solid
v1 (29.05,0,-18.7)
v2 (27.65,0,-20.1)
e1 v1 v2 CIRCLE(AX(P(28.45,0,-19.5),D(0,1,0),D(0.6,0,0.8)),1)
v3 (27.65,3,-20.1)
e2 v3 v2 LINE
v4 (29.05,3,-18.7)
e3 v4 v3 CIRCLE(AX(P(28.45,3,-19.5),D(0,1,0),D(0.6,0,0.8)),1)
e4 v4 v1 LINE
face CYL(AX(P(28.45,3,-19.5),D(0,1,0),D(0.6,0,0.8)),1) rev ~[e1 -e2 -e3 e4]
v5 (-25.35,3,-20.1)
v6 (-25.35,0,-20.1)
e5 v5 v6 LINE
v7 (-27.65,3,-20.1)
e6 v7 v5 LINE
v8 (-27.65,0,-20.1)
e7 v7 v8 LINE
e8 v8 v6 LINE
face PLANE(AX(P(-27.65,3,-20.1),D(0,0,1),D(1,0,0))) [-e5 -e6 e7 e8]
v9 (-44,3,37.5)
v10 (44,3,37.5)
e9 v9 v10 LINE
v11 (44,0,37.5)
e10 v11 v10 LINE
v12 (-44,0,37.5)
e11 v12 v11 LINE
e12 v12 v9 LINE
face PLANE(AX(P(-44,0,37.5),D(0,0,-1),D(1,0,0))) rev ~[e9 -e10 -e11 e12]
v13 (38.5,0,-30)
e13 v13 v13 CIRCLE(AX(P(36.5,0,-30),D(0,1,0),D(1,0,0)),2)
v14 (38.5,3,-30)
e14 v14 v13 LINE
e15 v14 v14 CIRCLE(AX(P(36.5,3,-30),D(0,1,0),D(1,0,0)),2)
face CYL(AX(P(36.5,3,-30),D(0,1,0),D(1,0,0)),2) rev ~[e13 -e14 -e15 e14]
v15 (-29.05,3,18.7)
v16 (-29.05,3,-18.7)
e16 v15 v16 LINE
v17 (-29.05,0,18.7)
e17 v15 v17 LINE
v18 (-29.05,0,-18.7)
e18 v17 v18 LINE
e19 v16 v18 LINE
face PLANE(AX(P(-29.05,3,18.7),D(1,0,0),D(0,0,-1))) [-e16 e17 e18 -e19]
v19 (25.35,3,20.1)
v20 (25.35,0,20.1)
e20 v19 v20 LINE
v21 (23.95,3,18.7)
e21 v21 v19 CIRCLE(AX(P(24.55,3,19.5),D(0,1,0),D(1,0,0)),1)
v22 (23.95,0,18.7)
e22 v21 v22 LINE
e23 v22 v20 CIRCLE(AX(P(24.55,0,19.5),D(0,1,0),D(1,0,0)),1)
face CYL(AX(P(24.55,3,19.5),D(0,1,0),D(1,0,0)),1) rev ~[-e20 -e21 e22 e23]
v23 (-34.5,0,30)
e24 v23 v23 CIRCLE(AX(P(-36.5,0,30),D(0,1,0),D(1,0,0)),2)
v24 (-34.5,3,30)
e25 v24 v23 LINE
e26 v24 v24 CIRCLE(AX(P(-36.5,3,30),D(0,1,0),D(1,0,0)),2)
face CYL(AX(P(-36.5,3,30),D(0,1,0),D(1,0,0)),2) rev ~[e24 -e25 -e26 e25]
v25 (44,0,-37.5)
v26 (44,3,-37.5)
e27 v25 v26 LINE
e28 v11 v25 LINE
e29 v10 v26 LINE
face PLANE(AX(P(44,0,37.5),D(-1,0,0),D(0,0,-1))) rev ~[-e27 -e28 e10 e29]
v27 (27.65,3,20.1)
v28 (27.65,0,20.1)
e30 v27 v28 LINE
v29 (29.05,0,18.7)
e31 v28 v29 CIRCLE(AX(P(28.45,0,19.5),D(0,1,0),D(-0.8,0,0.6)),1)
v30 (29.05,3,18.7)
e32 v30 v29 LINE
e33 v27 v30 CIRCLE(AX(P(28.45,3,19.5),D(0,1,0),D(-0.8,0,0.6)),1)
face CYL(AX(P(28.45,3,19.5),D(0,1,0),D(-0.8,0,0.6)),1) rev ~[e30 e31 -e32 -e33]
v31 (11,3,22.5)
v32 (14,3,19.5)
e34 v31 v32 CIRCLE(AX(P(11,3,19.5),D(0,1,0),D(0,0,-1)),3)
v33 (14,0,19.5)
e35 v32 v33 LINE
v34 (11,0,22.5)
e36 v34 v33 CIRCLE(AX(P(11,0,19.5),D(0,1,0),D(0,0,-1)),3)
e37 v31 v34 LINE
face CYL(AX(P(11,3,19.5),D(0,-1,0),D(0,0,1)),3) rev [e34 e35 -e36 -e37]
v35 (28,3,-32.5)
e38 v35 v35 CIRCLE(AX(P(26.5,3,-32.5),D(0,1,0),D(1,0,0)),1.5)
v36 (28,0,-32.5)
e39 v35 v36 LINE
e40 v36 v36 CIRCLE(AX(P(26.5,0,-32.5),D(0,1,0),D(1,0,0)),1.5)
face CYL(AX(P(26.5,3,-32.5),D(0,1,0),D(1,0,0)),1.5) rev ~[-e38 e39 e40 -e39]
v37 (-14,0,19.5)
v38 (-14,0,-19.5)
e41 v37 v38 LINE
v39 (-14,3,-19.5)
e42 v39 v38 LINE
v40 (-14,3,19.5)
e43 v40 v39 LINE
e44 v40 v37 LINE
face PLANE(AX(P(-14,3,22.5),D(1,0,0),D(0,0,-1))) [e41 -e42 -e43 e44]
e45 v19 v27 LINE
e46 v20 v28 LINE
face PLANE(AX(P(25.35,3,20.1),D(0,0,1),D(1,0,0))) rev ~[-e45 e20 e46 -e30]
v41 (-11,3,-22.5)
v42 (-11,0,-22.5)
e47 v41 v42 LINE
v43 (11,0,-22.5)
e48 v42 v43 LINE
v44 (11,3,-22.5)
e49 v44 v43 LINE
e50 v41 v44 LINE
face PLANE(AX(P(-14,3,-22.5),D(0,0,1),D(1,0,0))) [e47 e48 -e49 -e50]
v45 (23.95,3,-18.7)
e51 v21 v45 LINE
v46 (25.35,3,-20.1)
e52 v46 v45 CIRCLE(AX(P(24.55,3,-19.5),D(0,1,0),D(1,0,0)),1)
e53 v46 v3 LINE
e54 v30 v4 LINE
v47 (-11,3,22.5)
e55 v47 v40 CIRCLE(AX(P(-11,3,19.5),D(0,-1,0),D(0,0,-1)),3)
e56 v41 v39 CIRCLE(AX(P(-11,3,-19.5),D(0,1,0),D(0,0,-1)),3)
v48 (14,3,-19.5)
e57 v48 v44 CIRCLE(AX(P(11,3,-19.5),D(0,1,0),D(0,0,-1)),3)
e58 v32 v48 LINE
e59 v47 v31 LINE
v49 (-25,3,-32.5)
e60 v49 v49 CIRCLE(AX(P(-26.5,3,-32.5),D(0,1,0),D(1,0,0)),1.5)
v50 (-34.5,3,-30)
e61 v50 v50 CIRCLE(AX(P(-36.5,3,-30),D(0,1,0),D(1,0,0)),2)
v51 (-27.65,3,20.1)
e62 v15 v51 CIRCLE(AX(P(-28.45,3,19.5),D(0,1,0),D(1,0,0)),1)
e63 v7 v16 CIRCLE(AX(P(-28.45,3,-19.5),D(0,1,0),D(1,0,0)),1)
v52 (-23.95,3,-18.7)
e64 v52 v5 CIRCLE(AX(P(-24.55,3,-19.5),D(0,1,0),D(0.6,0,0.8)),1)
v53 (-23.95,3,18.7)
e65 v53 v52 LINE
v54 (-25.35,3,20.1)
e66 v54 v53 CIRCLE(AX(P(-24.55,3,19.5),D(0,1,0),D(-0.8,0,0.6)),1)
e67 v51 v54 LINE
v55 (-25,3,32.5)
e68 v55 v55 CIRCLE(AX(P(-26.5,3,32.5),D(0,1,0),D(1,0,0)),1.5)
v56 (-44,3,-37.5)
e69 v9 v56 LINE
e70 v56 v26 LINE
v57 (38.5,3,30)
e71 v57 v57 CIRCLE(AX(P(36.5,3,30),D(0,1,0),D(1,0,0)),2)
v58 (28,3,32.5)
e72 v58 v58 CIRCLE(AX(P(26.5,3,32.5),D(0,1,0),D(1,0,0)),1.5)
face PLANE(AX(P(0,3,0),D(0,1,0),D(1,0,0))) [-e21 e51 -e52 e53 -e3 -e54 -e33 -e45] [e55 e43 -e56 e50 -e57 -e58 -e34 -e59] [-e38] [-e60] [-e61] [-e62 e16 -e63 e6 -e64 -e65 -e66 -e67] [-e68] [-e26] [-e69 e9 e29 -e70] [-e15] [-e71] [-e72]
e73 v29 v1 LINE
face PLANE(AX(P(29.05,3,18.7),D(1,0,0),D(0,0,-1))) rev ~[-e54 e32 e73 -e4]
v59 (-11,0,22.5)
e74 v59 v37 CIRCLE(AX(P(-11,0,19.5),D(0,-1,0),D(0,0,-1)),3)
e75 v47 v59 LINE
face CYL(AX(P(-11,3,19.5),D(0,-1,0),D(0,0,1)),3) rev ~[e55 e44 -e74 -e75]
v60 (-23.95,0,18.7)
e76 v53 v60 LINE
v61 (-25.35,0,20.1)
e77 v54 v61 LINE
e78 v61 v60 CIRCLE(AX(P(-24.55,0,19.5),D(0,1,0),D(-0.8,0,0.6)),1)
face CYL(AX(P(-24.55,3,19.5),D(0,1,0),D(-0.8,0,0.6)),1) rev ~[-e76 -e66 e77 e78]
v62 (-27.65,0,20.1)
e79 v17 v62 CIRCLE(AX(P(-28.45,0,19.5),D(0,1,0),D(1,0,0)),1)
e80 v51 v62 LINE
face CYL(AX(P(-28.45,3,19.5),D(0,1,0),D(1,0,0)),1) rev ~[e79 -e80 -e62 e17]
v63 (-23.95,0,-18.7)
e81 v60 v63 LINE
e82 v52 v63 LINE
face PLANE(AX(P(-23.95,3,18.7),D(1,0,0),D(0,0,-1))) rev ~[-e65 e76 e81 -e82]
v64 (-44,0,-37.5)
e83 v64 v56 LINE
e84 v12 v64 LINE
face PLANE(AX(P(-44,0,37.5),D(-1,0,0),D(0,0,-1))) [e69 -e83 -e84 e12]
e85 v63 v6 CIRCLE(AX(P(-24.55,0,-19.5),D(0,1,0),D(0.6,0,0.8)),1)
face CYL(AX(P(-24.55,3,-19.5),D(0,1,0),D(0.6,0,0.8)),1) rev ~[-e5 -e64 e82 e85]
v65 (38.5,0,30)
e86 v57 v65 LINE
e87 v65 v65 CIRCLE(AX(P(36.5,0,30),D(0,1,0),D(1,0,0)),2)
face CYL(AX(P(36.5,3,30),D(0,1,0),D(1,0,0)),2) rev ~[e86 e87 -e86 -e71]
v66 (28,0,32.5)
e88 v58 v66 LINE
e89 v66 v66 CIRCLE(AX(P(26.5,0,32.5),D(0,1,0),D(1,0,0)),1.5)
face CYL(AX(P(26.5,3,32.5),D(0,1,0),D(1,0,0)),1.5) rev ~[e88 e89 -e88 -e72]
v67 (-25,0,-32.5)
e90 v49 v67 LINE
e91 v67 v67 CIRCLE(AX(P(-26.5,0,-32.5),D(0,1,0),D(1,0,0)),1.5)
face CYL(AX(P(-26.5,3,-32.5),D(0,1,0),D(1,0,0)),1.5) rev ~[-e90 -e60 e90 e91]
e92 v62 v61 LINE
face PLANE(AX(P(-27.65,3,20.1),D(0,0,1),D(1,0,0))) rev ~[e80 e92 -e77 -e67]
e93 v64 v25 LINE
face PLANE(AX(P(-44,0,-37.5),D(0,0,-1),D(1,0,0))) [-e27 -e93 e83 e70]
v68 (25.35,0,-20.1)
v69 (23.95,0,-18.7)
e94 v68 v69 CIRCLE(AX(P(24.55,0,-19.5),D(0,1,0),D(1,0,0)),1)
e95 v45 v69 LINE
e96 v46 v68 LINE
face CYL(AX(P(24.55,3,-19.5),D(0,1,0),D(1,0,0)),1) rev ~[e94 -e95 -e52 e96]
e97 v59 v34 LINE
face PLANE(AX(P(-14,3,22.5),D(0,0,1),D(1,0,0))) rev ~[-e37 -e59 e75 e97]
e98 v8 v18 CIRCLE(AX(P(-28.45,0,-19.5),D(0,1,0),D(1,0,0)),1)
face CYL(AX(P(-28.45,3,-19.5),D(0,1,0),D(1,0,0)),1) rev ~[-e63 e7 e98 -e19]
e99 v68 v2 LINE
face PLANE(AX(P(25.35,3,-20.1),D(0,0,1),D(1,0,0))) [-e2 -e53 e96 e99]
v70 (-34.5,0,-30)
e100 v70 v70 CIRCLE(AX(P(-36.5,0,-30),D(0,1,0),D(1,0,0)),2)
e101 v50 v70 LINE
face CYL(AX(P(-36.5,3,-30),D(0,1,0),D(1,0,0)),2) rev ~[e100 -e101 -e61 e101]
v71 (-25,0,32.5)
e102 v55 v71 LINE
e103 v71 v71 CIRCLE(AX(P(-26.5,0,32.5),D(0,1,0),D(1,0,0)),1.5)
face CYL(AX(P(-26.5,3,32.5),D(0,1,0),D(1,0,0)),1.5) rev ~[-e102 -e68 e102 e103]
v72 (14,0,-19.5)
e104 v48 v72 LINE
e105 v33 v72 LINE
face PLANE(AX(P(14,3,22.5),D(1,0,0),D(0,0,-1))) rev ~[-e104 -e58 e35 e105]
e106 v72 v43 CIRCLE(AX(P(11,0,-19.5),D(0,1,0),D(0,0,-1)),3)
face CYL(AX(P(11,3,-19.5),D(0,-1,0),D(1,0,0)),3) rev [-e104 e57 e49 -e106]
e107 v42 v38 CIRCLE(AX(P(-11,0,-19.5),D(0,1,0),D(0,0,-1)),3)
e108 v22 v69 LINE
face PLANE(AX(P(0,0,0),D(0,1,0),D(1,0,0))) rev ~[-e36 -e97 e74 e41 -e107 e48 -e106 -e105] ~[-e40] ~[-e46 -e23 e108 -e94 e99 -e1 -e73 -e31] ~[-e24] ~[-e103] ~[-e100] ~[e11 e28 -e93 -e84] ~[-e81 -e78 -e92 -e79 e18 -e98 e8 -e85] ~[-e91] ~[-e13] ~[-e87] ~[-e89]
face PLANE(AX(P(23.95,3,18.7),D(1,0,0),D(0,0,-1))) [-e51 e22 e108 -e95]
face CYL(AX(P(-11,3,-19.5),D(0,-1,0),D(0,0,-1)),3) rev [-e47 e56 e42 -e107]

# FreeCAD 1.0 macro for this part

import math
import FreeCAD as App
import Part
import Sketcher


def edges_at(feature, points):
    """Names of the edges that pass closest to the given points."""
    edges = feature.Shape.Edges
    near = lambda p: min(range(len(edges)), key=lambda i: edges[i].distToShape(Part.Vertex(*p))[0])
    return sorted({f"Edge{near(p) + 1}" for p in points})

doc = App.newDocument("Part")
body = doc.addObject("PartDesign::Body", "Body")

# Sketch on XZ plane
sketch1 = body.newObject("Sketcher::SketchObject", "Sketch")
sketch1.AttachmentSupport = (doc.getObject("XZ_Plane"), [""])
sketch1.MapMode = "FlatFace"
sketch1.addGeometry(Part.LineSegment(App.Vector(-44, -38, 0), App.Vector(-44, 38, 0)), False)
sketch1.addGeometry(Part.LineSegment(App.Vector(-44, 38, 0), App.Vector(44, 38, 0)), False)
sketch1.addGeometry(Part.LineSegment(App.Vector(44, 38, 0), App.Vector(44, -38, 0)), False)
sketch1.addGeometry(Part.LineSegment(App.Vector(44, -38, 0), App.Vector(-44, -38, 0)), False)
sketch1.addConstraint(Sketcher.Constraint("Coincident", 0, 2, 1, 1))
sketch1.addConstraint(Sketcher.Constraint("Coincident", 1, 2, 2, 1))
sketch1.addConstraint(Sketcher.Constraint("Coincident", 2, 2, 3, 1))
sketch1.addConstraint(Sketcher.Constraint("Coincident", 3, 2, 0, 1))
sketch1.addConstraint(Sketcher.Constraint("Vertical", 0))
sketch1.addConstraint(Sketcher.Constraint("Horizontal", 1))
sketch1.addConstraint(Sketcher.Constraint("Vertical", 2))
sketch1.addConstraint(Sketcher.Constraint("Horizontal", 3))
sketch1.addConstraint(Sketcher.Constraint("Symmetric", 0, 2, 2, 2, -1, 1))
sketch1.addConstraint(Sketcher.Constraint("DistanceX", 1, 1, 1, 2, 88.0))
sketch1.addConstraint(Sketcher.Constraint("DistanceY", 0, 1, 0, 2, 75.0))
pad1 = body.newObject("PartDesign::Pad", "Pad")
pad1.Profile = sketch1
pad1.Length = 3
pad1.Reversed = True

# Sketch on XZ plane
sketch2 = body.newObject("Sketcher::SketchObject", "Sketch001")
sketch2.AttachmentSupport = (doc.getObject("XZ_Plane"), [""])
sketch2.MapMode = "FlatFace"
sketch2.AttachmentOffset = App.Placement(App.Vector(0, 0, -3), App.Rotation())
sketch2.addGeometry(Part.Circle(App.Vector(-26.5, -32.5, 0), App.Vector(0, 0, 1), 1.5), False)
sketch2.addGeometry(Part.Circle(App.Vector(26.5, -32.5, 0), App.Vector(0, 0, 1), 1.5), False)
sketch2.addGeometry(Part.LineSegment(App.Vector(-29.1, -18.7, 0), App.Vector(-29.1, 18.7, 0)), False)
sketch2.addGeometry(Part.ArcOfCircle(Part.Circle(App.Vector(-28.4, 19.5, 0), App.Vector(0, 0, 1), 1), math.radians(37), math.radians(233)), False)
sketch2.addGeometry(Part.LineSegment(App.Vector(-27.6, 20.1, 0), App.Vector(-25.4, 20.1, 0)), False)
sketch2.addGeometry(Part.ArcOfCircle(Part.Circle(App.Vector(-24.6, 19.5, 0), App.Vector(0, 0, 1), 1), math.radians(-53), math.radians(143)), False)
sketch2.addGeometry(Part.LineSegment(App.Vector(-23.9, 18.7, 0), App.Vector(-23.9, -18.7, 0)), False)
sketch2.addGeometry(Part.ArcOfCircle(Part.Circle(App.Vector(-24.6, -19.5, 0), App.Vector(0, 0, 1), 1), math.radians(-143), math.radians(53)), False)
sketch2.addGeometry(Part.LineSegment(App.Vector(-25.4, -20.1, 0), App.Vector(-27.6, -20.1, 0)), False)
sketch2.addGeometry(Part.ArcOfCircle(Part.Circle(App.Vector(-28.4, -19.5, 0), App.Vector(0, 0, 1), 1), math.radians(127), math.radians(323)), False)
sketch2.addGeometry(Part.LineSegment(App.Vector(23.9, -18.7, 0), App.Vector(23.9, 18.7, 0)), False)
sketch2.addGeometry(Part.ArcOfCircle(Part.Circle(App.Vector(24.6, 19.5, 0), App.Vector(0, 0, 1), 1), math.radians(37), math.radians(233)), False)
sketch2.addGeometry(Part.LineSegment(App.Vector(25.4, 20.1, 0), App.Vector(27.6, 20.1, 0)), False)
sketch2.addGeometry(Part.ArcOfCircle(Part.Circle(App.Vector(28.4, 19.5, 0), App.Vector(0, 0, 1), 1), math.radians(-53), math.radians(143)), False)
sketch2.addGeometry(Part.LineSegment(App.Vector(29.1, 18.7, 0), App.Vector(29.1, -18.7, 0)), False)
sketch2.addGeometry(Part.ArcOfCircle(Part.Circle(App.Vector(28.4, -19.5, 0), App.Vector(0, 0, 1), 1), math.radians(-143), math.radians(53)), False)
sketch2.addGeometry(Part.LineSegment(App.Vector(27.6, -20.1, 0), App.Vector(25.4, -20.1, 0)), False)
sketch2.addGeometry(Part.ArcOfCircle(Part.Circle(App.Vector(24.6, -19.5, 0), App.Vector(0, 0, 1), 1), math.radians(127), math.radians(323)), False)
sketch2.addGeometry(Part.Circle(App.Vector(-26.5, 32.5, 0), App.Vector(0, 0, 1), 1.5), False)
sketch2.addGeometry(Part.Circle(App.Vector(26.5, 32.5, 0), App.Vector(0, 0, 1), 1.5), False)
sketch2.addGeometry(Part.Circle(App.Vector(-36.5, 30, 0), App.Vector(0, 0, 1), 2), False)
sketch2.addGeometry(Part.Circle(App.Vector(-36.5, -30, 0), App.Vector(0, 0, 1), 2), False)
sketch2.addGeometry(Part.Circle(App.Vector(36.5, -30, 0), App.Vector(0, 0, 1), 2), False)
sketch2.addGeometry(Part.Circle(App.Vector(36.5, 30, 0), App.Vector(0, 0, 1), 2), False)
sketch2.addGeometry(Part.LineSegment(App.Vector(-14, -22.5, 0), App.Vector(-14, 22.5, 0)), False)
sketch2.addGeometry(Part.LineSegment(App.Vector(-14, 22.5, 0), App.Vector(14, 22.5, 0)), False)
sketch2.addGeometry(Part.LineSegment(App.Vector(14, 22.5, 0), App.Vector(14, -22.5, 0)), False)
sketch2.addGeometry(Part.LineSegment(App.Vector(14, -22.5, 0), App.Vector(-14, -22.5, 0)), False)
sketch2.addConstraint(Sketcher.Constraint("Coincident", 2, 2, 3, 2))
sketch2.addConstraint(Sketcher.Constraint("Coincident", 3, 1, 4, 1))
sketch2.addConstraint(Sketcher.Constraint("Coincident", 4, 2, 5, 2))
sketch2.addConstraint(Sketcher.Constraint("Coincident", 5, 1, 6, 1))
sketch2.addConstraint(Sketcher.Constraint("Coincident", 6, 2, 7, 2))
sketch2.addConstraint(Sketcher.Constraint("Coincident", 7, 1, 8, 1))
sketch2.addConstraint(Sketcher.Constraint("Coincident", 8, 2, 9, 2))
sketch2.addConstraint(Sketcher.Constraint("Coincident", 9, 1, 2, 1))
sketch2.addConstraint(Sketcher.Constraint("Coincident", 10, 2, 11, 2))
sketch2.addConstraint(Sketcher.Constraint("Coincident", 11, 1, 12, 1))
sketch2.addConstraint(Sketcher.Constraint("Coincident", 12, 2, 13, 2))
sketch2.addConstraint(Sketcher.Constraint("Coincident", 13, 1, 14, 1))
sketch2.addConstraint(Sketcher.Constraint("Coincident", 14, 2, 15, 2))
sketch2.addConstraint(Sketcher.Constraint("Coincident", 15, 1, 16, 1))
sketch2.addConstraint(Sketcher.Constraint("Coincident", 16, 2, 17, 2))
sketch2.addConstraint(Sketcher.Constraint("Coincident", 17, 1, 10, 1))
sketch2.addConstraint(Sketcher.Constraint("Coincident", 24, 2, 25, 1))
sketch2.addConstraint(Sketcher.Constraint("Coincident", 25, 2, 26, 1))
sketch2.addConstraint(Sketcher.Constraint("Coincident", 26, 2, 27, 1))
sketch2.addConstraint(Sketcher.Constraint("Coincident", 27, 2, 24, 1))
sketch2.addConstraint(Sketcher.Constraint("Vertical", 2))
sketch2.addConstraint(Sketcher.Constraint("Horizontal", 4))
sketch2.addConstraint(Sketcher.Constraint("Vertical", 6))
sketch2.addConstraint(Sketcher.Constraint("Horizontal", 8))
sketch2.addConstraint(Sketcher.Constraint("Vertical", 10))
sketch2.addConstraint(Sketcher.Constraint("Horizontal", 12))
sketch2.addConstraint(Sketcher.Constraint("Vertical", 14))
sketch2.addConstraint(Sketcher.Constraint("Horizontal", 16))
sketch2.addConstraint(Sketcher.Constraint("Vertical", 24))
sketch2.addConstraint(Sketcher.Constraint("Horizontal", 25))
sketch2.addConstraint(Sketcher.Constraint("Vertical", 26))
sketch2.addConstraint(Sketcher.Constraint("Horizontal", 27))
sketch2.addConstraint(Sketcher.Constraint("Equal", 0, 1))
sketch2.addConstraint(Sketcher.Constraint("Equal", 3, 5))
sketch2.addConstraint(Sketcher.Constraint("Equal", 5, 7))
sketch2.addConstraint(Sketcher.Constraint("Equal", 7, 9))
sketch2.addConstraint(Sketcher.Constraint("Equal", 9, 11))
sketch2.addConstraint(Sketcher.Constraint("Equal", 11, 13))
sketch2.addConstraint(Sketcher.Constraint("Equal", 13, 15))
sketch2.addConstraint(Sketcher.Constraint("Equal", 15, 17))
sketch2.addConstraint(Sketcher.Constraint("Equal", 1, 18))
sketch2.addConstraint(Sketcher.Constraint("Equal", 18, 19))
sketch2.addConstraint(Sketcher.Constraint("Equal", 20, 21))
sketch2.addConstraint(Sketcher.Constraint("Equal", 21, 22))
sketch2.addConstraint(Sketcher.Constraint("Equal", 22, 23))
sketch2.addConstraint(Sketcher.Constraint("Symmetric", 7, 3, 11, 3, -1, 1))
sketch2.addConstraint(Sketcher.Constraint("Symmetric", 9, 3, 13, 3, -1, 1))
sketch2.addConstraint(Sketcher.Constraint("Symmetric", 3, 3, 15, 3, -1, 1))
sketch2.addConstraint(Sketcher.Constraint("Symmetric", 5, 3, 17, 3, -1, 1))
sketch2.addConstraint(Sketcher.Constraint("Symmetric", 1, 3, 18, 3, -1, 1))
sketch2.addConstraint(Sketcher.Constraint("Symmetric", 0, 3, 19, 3, -1, 1))
sketch2.addConstraint(Sketcher.Constraint("Symmetric", 20, 3, 22, 3, -1, 1))
sketch2.addConstraint(Sketcher.Constraint("Symmetric", 21, 3, 23, 3, -1, 1))
sketch2.addConstraint(Sketcher.Constraint("Symmetric", 24, 2, 26, 2, -1, 1))
sketch2.addConstraint(Sketcher.Constraint("Symmetric", 0, 3, 1, 3, -2))
sketch2.addConstraint(Sketcher.Constraint("Symmetric", 5, 3, 11, 3, -2))
sketch2.addConstraint(Sketcher.Constraint("Symmetric", 3, 3, 13, 3, -2))
sketch2.addConstraint(Sketcher.Constraint("Symmetric", 21, 3, 22, 3, -2))
sketch2.addConstraint(Sketcher.Constraint("Horizontal", 3, 3, 5, 3))
sketch2.addConstraint(Sketcher.Constraint("Horizontal", 2, 2, 5, 1))
sketch2.addConstraint(Sketcher.Constraint("Horizontal", 5, 1, 10, 2))
sketch2.addConstraint(Sketcher.Constraint("Horizontal", 4, 2, 11, 1))
sketch2.addConstraint(Sketcher.Constraint("Horizontal", 10, 2, 13, 1))
sketch2.addConstraint(Sketcher.Constraint("Horizontal", 8, 2, 15, 1))
sketch2.addConstraint(Sketcher.Constraint("Vertical", 4, 2, 7, 1))
sketch2.addConstraint(Sketcher.Constraint("Diameter", 0, 3.0))
sketch2.addConstraint(Sketcher.Constraint("Diameter", 20, 4.0))
sketch2.addConstraint(Sketcher.Constraint("Radius", 3, 1.0))
sketch2.addConstraint(Sketcher.Constraint("DistanceX", 25, 1, 25, 2, 28.0))
sketch2.addConstraint(Sketcher.Constraint("DistanceY", 24, 1, 24, 2, 45.0))
sketch2.addConstraint(Sketcher.Constraint("DistanceX", 4, 1, 4, 2, 2.3))
sketch2.addConstraint(Sketcher.Constraint("DistanceY", 2, 1, 2, 2, 37.4))
sketch2.addConstraint(Sketcher.Constraint("DistanceY", -1, 1, 20, 3, 30.0))
sketch2.addConstraint(Sketcher.Constraint("DistanceX", 0, 3, 1, 3, 53.0))
sketch2.addConstraint(Sketcher.Constraint("DistanceY", 0, 3, 3, 3, 52.0))
sketch2.addConstraint(Sketcher.Constraint("DistanceY", 0, 3, 7, 3, 13.0))
sketch2.addConstraint(Sketcher.Constraint("DistanceX", 3, 3, 11, 3, 53.0))
sketch2.addConstraint(Sketcher.Constraint("DistanceX", 20, 3, 18, 3, 10.0))
sketch2.addConstraint(Sketcher.Constraint("DistanceY", -1, 1, 3, 1, 20.1))
pocket1 = body.newObject("PartDesign::Pocket", "Pocket")
pocket1.Profile = sketch2
pocket1.Length = 3
pocket1.Reversed = True
doc.recompute()

fillet = body.newObject("PartDesign::Fillet", "Fillet")
fillet.Base = (pocket1, edges_at(pocket1, [
    (-14, 1.5, -22.5),
    (14, 1.5, -22.5),
    (14, 1.5, 22.5),
    (-14, 1.5, 22.5),
]))
fillet.Radius = 3

doc.recompute()
